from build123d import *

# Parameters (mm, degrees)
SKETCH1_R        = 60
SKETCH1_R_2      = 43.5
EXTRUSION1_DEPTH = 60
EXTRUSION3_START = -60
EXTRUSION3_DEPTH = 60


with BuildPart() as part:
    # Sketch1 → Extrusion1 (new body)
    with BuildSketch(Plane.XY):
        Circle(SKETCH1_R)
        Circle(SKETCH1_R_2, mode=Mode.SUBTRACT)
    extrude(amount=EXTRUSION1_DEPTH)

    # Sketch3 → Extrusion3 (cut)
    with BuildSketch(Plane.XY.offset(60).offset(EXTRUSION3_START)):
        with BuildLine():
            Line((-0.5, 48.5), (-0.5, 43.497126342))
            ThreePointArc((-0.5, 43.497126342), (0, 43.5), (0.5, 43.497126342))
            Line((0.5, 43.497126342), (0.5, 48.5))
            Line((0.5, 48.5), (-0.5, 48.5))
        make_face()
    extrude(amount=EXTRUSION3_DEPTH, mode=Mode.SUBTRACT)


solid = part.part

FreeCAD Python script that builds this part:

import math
import FreeCAD as App
import Part
import Sketcher

V = App.Vector

doc = App.newDocument("Part")
body = doc.addObject("PartDesign::Body", "Body")

sketch1 = body.newObject("Sketcher::SketchObject", "Sketch")
sketch1.AttachmentSupport = (doc.getObject("XY_Plane"), [""])
sketch1.MapMode = "FlatFace"
sketch1.addGeometry(Part.Circle(V(0, 0, 0), V(0, 0, 1), 60), False)
sketch1.addGeometry(Part.Circle(V(0, 0, 0), V(0, 0, 1), 43.5), False)
sketch1.addConstraint(Sketcher.Constraint("Coincident", 0, 3, -1, 1))
sketch1.addConstraint(Sketcher.Constraint("Coincident", 1, 3, -1, 1))
sketch1.addConstraint(Sketcher.Constraint("Diameter", 0, 120.0))
sketch1.addConstraint(Sketcher.Constraint("Diameter", 1, 87.0))
pad1 = body.newObject("PartDesign::Pad", "Pad")
pad1.Profile = sketch1
pad1.Length = 60

sketch2 = body.newObject("Sketcher::SketchObject", "Sketch001")
sketch2.AttachmentSupport = (doc.getObject("XY_Plane"), [""])
sketch2.MapMode = "FlatFace"
sketch2.addGeometry(Part.LineSegment(V(-0.5, 48.5, 0), V(-0.5, 43.497126, 0)), False)
sketch2.addGeometry(Part.ArcOfCircle(Part.Circle(V(0, -0.000002, 0), V(0, 0, 1), 43.500002), math.radians(89.341413), math.radians(90.658587)), False)
sketch2.addGeometry(Part.LineSegment(V(0.5, 43.497126, 0), V(0.5, 48.5, 0)), False)
sketch2.addGeometry(Part.LineSegment(V(0.5, 48.5, 0), V(-0.5, 48.5, 0)), False)
sketch2.addConstraint(Sketcher.Constraint("Coincident", 0, 2, 1, 2))
sketch2.addConstraint(Sketcher.Constraint("Coincident", 1, 1, 2, 1))
sketch2.addConstraint(Sketcher.Constraint("Coincident", 2, 2, 3, 1))
sketch2.addConstraint(Sketcher.Constraint("Coincident", 3, 2, 0, 1))
sketch2.addConstraint(Sketcher.Constraint("Vertical", 0))
sketch2.addConstraint(Sketcher.Constraint("Vertical", 2))
sketch2.addConstraint(Sketcher.Constraint("Horizontal", 3))
sketch2.addConstraint(Sketcher.Constraint("Coincident", 1, 3, -1, 1))
sketch2.addConstraint(Sketcher.Constraint("Horizontal", 0, 2, 1, 1))
sketch2.addConstraint(Sketcher.Constraint("DistanceX", 3, 2, 3, 1, 1.0))
sketch2.addConstraint(Sketcher.Constraint("DistanceY", -1, 1, 2, 2, 48.5))
sketch2.addConstraint(Sketcher.Constraint("Radius", 1, 43.500002))
pocket1 = body.newObject("PartDesign::Pocket", "Pocket")
pocket1.Profile = sketch2
pocket1.Length = 60
pocket1.Reversed = True

doc.recompute()
